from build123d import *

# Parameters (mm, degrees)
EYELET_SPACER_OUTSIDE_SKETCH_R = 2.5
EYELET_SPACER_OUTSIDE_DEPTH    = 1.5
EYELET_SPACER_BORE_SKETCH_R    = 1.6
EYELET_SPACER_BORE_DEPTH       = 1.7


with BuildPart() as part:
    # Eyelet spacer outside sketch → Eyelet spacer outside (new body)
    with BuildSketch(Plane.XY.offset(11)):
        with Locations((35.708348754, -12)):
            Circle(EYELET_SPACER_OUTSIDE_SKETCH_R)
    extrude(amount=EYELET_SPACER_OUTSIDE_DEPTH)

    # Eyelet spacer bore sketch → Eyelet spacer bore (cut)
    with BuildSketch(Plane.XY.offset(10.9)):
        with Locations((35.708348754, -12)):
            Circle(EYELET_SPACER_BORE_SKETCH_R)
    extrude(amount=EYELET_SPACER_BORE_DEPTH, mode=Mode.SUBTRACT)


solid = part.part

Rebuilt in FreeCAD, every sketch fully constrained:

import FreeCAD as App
import Part
import Sketcher
from FreeCAD import Vector

doc = App.newDocument("Part")
body = doc.addObject("PartDesign::Body", "Body")

# Sketch on XY plane
sketch1 = body.newObject("Sketcher::SketchObject", "Sketch")
sketch1.AttachmentSupport = (doc.getObject("XY_Plane"), [""])
sketch1.MapMode = "FlatFace"
sketch1.AttachmentOffset = App.Placement(Vector(0, 0, 11), App.Rotation())
sketch1.addGeometry(Part.Circle(Vector(35.7, -12, 0), Vector(0, 0, 1), 2.5), False)
sketch1.addConstraint(Sketcher.Constraint("Diameter", 0, 5.0))
sketch1.addConstraint(Sketcher.Constraint("DistanceY", 0, 3, -1, 1, 12.0))
sketch1.addConstraint(Sketcher.Constraint("DistanceX", -1, 1, 0, 3, 35.708349))
pad1 = body.newObject("PartDesign::Pad", "Pad")
pad1.Profile = sketch1
pad1.Length = 1.5

# Sketch on XY plane
sketch2 = body.newObject("Sketcher::SketchObject", "Sketch001")
sketch2.AttachmentSupport = (doc.getObject("XY_Plane"), [""])
sketch2.MapMode = "FlatFace"
sketch2.AttachmentOffset = App.Placement(Vector(0, 0, 10.9), App.Rotation())
sketch2.addGeometry(Part.Circle(Vector(35.7, -12, 0), Vector(0, 0, 1), 1.6), False)
sketch2.addConstraint(Sketcher.Constraint("Diameter", 0, 3.2))
sketch2.addConstraint(Sketcher.Constraint("DistanceY", 0, 3, -1, 1, 12.0))
sketch2.addConstraint(Sketcher.Constraint("DistanceX", -1, 1, 0, 3, 35.708349))
pocket1 = body.newObject("PartDesign::Pocket", "Pocket")
pocket1.Profile = sketch2
pocket1.Length = 1.7
pocket1.Reversed = True

doc.recompute()
